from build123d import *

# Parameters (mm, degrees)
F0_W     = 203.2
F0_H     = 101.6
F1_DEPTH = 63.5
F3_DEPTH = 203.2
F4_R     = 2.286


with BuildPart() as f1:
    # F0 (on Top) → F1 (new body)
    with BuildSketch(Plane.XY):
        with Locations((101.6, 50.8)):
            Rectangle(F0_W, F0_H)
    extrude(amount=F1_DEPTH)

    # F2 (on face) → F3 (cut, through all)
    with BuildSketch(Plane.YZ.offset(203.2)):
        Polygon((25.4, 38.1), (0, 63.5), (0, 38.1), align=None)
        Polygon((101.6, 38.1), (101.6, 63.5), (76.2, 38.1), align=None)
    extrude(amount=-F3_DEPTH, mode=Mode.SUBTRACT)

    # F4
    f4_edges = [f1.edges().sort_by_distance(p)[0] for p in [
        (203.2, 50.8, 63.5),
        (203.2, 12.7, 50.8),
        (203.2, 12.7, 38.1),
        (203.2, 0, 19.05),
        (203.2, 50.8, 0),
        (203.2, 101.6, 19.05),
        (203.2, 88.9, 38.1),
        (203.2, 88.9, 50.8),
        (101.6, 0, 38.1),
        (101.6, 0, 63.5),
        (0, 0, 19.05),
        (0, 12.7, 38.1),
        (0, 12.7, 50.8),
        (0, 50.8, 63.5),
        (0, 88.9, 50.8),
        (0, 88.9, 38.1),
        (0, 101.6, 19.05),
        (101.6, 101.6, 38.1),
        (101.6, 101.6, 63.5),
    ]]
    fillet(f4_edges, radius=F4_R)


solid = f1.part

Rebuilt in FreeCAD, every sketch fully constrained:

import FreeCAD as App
import Part
import Sketcher
from FreeCAD import Vector
Q = App.Units.Quantity


def edges_at(feature, points):
    """Names of the edges that pass closest to the given points."""
    edges = feature.Shape.Edges
    near = lambda p: min(range(len(edges)), key=lambda i: edges[i].distToShape(Part.Vertex(*p))[0])
    return sorted({f"Edge{near(p) + 1}" for p in points})


def add_polygon(sketch, points):
    """Adds a closed chain of lines whose ends are joined by coincident constraints."""
    first, n = sketch.GeometryCount, len(points)
    for a, b in zip(points, points[1:] + points[:1]):
        sketch.addGeometry(Part.LineSegment(App.Vector(*a, 0), App.Vector(*b, 0)), False)
    for i in range(n):
        sketch.addConstraint(Sketcher.Constraint("Coincident", first + i, 2, first + (i + 1) % n, 1))

doc = App.newDocument("Part")
body = doc.addObject("PartDesign::Body", "Body")

# Sketch on XY plane
sketch1 = body.newObject("Sketcher::SketchObject", "Sketch")
sketch1.AttachmentSupport = (doc.getObject("XY_Plane"), [""])
sketch1.MapMode = "FlatFace"
add_polygon(sketch1, [(0, 102), (0, 0), (203, 0), (203, 102)])  # lines 0-3
sketch1.addConstraint(Sketcher.Constraint("Vertical", 0))
sketch1.addConstraint(Sketcher.Constraint("Horizontal", 1))
sketch1.addConstraint(Sketcher.Constraint("Vertical", 2))
sketch1.addConstraint(Sketcher.Constraint("Horizontal", 3))
sketch1.addConstraint(Sketcher.Constraint("Coincident", 0, 2, -1, 1))
sketch1.addConstraint(Sketcher.Constraint("DistanceX", 1, 1, 1, 2, Q("8 in")))
sketch1.addConstraint(Sketcher.Constraint("DistanceY", 0, 2, 0, 1, Q("4 in")))
pad1 = body.newObject("PartDesign::Pad", "Pad")
pad1.Profile = sketch1
pad1.Length = Q("2.5 in")

# Sketch on YZ plane
sketch2 = body.newObject("Sketcher::SketchObject", "Sketch001")
sketch2.AttachmentSupport = (doc.getObject("YZ_Plane"), [""])
sketch2.MapMode = "FlatFace"
sketch2.AttachmentOffset = App.Placement(Vector(0, 0, 8 * 25.4), App.Rotation())
add_polygon(sketch2, [(25, 38), (0, 64), (0, 38)])  # lines 0-2
add_polygon(sketch2, [(102, 38), (102, 64), (76, 38)])  # lines 3-5
sketch2.addConstraint(Sketcher.Constraint("Vertical", 1))
sketch2.addConstraint(Sketcher.Constraint("Horizontal", 2))
sketch2.addConstraint(Sketcher.Constraint("Vertical", 3))
sketch2.addConstraint(Sketcher.Constraint("Horizontal", 5))
sketch2.addConstraint(Sketcher.Constraint("PointOnObject", 0, 2, -2))
sketch2.addConstraint(Sketcher.Constraint("Perpendicular", 0, 4))
sketch2.addConstraint(Sketcher.Constraint("Horizontal", 0, 2, 3, 2))
sketch2.addConstraint(Sketcher.Constraint("Horizontal", 2, 2, 4, 2))
sketch2.addConstraint(Sketcher.Constraint("Equal", 2, 5))
sketch2.addConstraint(Sketcher.Constraint("DistanceX", 2, 1, 2, 2, Q("1 in")))
sketch2.addConstraint(Sketcher.Constraint("DistanceX", -1, 1, 3, 2, Q("4 in")))
sketch2.addConstraint(Sketcher.Constraint("DistanceY", -1, 1, 0, 2, Q("2.5 in")))
pocket1 = body.newObject("PartDesign::Pocket", "Pocket")
pocket1.Profile = sketch2
pocket1.Type = "ThroughAll"
doc.recompute()

fillet = body.newObject("PartDesign::Fillet", "Fillet")
fillet.Base = (pocket1, edges_at(pocket1, [
    (203.2, 50.8, 63.5),
    (203.2, 12.7, 50.8),
    (203.2, 12.7, 38.1),
    (203.2, 0, 19.05),
    (203.2, 50.8, 0),
    (203.2, 101.6, 19.05),
    (203.2, 88.9, 38.1),
    (203.2, 88.9, 50.8),
    (101.6, 0, 38.1),
    (101.6, 0, 63.5),
    (0, 0, 19.05),
    (0, 12.7, 38.1),
    (0, 12.7, 50.8),
    (0, 50.8, 63.5),
    (0, 88.9, 50.8),
    (0, 88.9, 38.1),
    (0, 101.6, 19.05),
    (101.6, 101.6, 38.1),
    (101.6, 101.6, 63.5),
]))
fillet.Radius = Q("0.09 in")

doc.recompute()
